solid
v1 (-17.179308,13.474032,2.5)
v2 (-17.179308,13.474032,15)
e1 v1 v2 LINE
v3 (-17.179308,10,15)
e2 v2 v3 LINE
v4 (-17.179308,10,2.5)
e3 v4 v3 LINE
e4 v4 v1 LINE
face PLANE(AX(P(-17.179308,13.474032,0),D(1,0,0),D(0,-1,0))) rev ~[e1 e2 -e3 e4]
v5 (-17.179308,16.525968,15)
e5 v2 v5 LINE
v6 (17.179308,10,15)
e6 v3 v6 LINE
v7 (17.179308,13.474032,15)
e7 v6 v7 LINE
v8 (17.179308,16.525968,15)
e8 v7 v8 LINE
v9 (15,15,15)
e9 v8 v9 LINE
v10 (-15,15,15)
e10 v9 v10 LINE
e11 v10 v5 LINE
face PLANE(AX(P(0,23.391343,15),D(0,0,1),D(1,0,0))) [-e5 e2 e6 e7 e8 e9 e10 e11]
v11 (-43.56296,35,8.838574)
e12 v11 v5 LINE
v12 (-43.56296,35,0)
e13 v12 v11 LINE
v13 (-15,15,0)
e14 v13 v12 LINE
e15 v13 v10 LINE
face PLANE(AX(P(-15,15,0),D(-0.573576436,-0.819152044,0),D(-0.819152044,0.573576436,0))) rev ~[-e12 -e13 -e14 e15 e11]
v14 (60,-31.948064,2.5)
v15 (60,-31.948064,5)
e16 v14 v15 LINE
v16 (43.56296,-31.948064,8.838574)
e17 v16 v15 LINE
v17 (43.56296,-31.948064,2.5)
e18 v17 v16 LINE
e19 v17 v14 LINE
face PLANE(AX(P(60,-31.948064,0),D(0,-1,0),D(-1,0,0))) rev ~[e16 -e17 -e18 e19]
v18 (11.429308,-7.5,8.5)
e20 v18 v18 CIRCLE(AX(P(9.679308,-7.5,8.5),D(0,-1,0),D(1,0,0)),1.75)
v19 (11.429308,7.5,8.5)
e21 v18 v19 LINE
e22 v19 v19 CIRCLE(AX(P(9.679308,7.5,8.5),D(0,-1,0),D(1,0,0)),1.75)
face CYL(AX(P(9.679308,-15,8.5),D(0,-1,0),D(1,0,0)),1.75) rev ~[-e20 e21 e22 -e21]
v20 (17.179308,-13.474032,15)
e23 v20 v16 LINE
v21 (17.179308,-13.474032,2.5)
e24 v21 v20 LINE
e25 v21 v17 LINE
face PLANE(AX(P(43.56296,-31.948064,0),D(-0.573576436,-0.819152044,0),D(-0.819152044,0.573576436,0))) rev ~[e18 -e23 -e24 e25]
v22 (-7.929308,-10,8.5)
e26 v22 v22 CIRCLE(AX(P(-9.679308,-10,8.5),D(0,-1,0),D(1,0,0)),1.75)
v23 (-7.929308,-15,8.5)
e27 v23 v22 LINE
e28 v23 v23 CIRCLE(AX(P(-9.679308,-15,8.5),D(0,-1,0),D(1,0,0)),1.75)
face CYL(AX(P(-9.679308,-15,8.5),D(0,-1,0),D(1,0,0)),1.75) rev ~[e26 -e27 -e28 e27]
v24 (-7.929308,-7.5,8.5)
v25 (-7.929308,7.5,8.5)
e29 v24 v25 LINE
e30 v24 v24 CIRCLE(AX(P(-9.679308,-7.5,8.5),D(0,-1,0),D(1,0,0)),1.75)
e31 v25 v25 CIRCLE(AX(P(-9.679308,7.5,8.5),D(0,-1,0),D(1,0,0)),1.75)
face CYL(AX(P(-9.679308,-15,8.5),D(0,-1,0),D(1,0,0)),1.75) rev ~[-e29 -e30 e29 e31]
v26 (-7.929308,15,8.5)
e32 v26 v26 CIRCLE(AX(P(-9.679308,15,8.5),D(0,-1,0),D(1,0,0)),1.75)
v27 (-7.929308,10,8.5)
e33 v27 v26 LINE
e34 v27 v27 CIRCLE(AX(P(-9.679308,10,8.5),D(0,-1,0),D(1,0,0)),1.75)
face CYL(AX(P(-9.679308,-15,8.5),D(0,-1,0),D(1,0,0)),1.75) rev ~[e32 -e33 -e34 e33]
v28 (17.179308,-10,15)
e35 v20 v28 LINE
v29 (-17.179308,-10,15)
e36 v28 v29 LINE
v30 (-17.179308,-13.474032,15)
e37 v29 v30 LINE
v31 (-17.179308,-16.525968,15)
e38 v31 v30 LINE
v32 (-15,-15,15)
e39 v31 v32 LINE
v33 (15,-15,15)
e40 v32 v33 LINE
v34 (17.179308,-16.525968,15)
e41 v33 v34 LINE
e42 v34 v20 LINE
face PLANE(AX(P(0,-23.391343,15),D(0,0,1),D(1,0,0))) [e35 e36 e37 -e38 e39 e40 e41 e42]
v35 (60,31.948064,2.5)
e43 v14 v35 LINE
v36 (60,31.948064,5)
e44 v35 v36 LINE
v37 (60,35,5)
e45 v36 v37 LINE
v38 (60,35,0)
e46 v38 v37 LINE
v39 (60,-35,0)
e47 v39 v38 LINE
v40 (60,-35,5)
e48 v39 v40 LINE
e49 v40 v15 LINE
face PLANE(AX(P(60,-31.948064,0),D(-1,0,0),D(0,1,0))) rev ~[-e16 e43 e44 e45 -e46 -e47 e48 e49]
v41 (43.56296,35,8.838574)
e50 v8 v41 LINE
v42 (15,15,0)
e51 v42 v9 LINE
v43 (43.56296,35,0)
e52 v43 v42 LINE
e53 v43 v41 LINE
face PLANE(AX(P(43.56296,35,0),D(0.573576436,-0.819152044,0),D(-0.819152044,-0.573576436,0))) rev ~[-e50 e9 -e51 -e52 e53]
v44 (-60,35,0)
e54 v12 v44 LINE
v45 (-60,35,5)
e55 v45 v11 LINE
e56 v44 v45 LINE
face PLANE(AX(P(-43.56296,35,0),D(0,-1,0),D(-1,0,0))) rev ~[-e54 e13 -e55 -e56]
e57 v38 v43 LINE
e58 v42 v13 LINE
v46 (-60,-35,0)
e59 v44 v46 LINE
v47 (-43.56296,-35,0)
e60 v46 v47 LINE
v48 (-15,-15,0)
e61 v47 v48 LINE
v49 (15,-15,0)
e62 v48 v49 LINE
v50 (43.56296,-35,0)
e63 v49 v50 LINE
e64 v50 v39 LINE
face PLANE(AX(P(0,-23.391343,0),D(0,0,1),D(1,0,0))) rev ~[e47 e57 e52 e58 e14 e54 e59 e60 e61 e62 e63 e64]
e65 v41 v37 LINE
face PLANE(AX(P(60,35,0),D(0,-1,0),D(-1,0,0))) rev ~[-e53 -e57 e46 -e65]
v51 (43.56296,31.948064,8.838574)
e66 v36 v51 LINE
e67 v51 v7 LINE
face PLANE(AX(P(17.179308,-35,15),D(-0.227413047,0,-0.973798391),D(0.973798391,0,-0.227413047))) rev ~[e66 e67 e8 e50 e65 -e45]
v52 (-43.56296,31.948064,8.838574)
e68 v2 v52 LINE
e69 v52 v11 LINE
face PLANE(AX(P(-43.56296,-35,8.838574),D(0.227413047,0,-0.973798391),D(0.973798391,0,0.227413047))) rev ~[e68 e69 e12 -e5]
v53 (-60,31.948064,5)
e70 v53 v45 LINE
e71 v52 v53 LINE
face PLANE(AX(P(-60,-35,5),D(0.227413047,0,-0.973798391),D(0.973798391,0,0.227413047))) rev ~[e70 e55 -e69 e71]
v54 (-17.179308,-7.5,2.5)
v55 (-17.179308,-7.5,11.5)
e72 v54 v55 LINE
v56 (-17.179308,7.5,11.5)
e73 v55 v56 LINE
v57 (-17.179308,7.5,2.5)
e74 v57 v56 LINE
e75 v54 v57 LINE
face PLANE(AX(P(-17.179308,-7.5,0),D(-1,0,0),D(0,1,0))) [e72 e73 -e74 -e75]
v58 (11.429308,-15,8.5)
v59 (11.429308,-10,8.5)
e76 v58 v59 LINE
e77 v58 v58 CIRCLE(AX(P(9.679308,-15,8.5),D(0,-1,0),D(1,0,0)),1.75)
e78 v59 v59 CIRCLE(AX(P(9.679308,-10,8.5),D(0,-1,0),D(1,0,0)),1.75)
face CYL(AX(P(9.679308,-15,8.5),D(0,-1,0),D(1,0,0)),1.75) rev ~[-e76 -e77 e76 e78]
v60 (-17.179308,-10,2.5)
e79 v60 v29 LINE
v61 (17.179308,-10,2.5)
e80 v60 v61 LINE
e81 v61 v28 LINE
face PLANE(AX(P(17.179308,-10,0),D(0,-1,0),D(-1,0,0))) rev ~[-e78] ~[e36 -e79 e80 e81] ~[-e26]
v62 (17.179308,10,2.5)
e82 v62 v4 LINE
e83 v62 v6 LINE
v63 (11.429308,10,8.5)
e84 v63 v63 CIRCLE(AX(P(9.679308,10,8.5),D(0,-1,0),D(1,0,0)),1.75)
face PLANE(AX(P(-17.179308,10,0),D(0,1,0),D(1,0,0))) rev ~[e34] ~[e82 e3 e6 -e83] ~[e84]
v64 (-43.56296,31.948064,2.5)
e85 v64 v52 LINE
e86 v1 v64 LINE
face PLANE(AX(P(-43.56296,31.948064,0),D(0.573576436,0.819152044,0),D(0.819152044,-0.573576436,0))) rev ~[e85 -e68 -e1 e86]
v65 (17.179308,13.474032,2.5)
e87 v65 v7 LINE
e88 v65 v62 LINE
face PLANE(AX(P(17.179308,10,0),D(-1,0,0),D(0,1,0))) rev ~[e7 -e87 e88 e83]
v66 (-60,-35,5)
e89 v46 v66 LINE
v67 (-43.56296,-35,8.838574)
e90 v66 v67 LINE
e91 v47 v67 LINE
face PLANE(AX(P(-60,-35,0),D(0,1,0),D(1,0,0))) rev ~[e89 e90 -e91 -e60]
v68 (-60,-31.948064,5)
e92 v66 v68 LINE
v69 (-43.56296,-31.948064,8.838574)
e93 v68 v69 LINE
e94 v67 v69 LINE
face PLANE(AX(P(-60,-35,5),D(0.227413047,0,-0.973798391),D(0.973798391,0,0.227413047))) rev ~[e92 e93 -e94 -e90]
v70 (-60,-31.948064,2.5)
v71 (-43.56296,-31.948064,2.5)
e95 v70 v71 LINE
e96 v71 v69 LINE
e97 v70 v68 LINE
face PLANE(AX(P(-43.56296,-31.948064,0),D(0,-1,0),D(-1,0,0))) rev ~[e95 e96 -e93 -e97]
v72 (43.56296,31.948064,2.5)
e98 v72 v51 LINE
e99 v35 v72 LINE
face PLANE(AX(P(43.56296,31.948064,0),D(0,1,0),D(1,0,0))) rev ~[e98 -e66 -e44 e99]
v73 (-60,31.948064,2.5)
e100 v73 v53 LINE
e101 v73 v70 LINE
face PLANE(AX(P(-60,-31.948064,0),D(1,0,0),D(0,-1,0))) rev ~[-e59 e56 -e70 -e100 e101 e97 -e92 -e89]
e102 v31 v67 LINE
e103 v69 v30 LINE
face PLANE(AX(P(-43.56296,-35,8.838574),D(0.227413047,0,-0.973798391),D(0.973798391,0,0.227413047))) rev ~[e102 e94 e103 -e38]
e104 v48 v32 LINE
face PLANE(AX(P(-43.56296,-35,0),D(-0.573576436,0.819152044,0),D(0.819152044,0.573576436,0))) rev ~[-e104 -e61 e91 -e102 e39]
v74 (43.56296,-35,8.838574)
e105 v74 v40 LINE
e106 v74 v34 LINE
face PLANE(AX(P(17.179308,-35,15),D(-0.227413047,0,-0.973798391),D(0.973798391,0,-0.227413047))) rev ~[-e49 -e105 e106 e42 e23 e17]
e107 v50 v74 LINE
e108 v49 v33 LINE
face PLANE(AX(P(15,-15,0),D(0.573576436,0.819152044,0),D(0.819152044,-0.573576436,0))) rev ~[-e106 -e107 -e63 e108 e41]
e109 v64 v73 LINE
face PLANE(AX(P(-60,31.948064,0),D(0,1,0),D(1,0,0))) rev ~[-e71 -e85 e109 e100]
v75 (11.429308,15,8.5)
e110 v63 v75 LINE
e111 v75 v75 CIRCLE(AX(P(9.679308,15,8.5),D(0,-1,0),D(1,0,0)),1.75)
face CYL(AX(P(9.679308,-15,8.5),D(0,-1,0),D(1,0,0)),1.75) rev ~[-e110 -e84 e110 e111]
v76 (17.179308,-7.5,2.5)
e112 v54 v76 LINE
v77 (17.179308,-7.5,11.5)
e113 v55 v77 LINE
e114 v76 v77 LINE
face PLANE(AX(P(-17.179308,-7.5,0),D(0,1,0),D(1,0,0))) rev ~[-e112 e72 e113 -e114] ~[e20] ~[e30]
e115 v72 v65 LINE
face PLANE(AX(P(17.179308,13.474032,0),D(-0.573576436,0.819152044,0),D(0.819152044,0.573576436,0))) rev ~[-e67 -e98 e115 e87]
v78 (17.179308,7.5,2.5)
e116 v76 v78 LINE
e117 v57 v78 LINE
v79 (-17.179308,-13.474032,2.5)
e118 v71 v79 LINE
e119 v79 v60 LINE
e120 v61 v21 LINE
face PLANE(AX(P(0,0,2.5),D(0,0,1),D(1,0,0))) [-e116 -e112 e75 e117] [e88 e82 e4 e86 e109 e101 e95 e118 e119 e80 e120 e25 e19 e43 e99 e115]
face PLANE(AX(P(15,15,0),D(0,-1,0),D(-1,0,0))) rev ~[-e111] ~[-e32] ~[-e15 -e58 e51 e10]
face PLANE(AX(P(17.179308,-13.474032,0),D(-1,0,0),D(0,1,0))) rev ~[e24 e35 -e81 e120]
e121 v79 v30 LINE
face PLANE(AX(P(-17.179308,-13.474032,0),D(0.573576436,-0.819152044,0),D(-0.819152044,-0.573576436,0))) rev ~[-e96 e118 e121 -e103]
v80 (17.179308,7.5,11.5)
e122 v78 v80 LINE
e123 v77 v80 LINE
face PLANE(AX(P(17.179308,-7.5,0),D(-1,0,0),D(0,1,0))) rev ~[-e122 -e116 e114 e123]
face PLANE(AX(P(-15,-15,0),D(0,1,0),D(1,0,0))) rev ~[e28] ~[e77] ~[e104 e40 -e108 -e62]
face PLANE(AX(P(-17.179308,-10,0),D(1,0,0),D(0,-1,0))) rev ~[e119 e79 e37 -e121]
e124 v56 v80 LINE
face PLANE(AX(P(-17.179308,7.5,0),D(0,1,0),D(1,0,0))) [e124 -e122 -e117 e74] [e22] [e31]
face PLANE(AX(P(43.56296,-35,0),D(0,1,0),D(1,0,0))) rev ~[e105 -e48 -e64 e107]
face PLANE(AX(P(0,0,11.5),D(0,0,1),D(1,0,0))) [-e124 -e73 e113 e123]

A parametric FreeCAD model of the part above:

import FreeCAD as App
import Part
import Sketcher

V = App.Vector
Q = App.Units.Quantity


def add_polygon(sketch, points):
    """Adds a closed chain of lines whose ends are joined by coincident constraints."""
    first, n = sketch.GeometryCount, len(points)
    for a, b in zip(points, points[1:] + points[:1]):
        sketch.addGeometry(Part.LineSegment(App.Vector(*a, 0), App.Vector(*b, 0)), False)
    for i in range(n):
        sketch.addConstraint(Sketcher.Constraint("Coincident", first + i, 2, first + (i + 1) % n, 1))

doc = App.newDocument("Part")
params = doc.addObject("Spreadsheet::Sheet", "Params")
for row, (alias, value) in enumerate([
    ("sketch1_height", "15 mm"),
    ("pad1_length", "11.5 mm"),
    ("sketch2_height", "15 mm"),
    ("pad2_length", "2.5 mm"),
    ("sketch3_width", "30 mm"),
    ("pad3_length", "15 mm"),
    ("sketch4_height", "10 mm"),
    ("sketch5_diameter", "3.5 mm"),
], start=1):
    params.set(f"A{row}", alias)
    params.set(f"B{row}", "=" + value)
    params.setAlias(f"B{row}", alias)

body = doc.addObject("PartDesign::Body", "Body")

# Sketch on XY plane
sketch1 = doc.addObject("Sketcher::SketchObject", "Sketch")
body.addObject(sketch1)
sketch1.AttachmentSupport = (doc.XY_Plane, [""])
sketch1.MapMode = "FlatFace"
add_polygon(sketch1, [(-17, 8), (-17, -8), (17, -8), (17, 8)])  # lines 0-3
sketch1.addConstraint([
    Sketcher.Constraint("Vertical", 0),
    Sketcher.Constraint("Horizontal", 1),
    Sketcher.Constraint("Vertical", 2),
    Sketcher.Constraint("Horizontal", 3),
    Sketcher.Constraint("Symmetric", 0, 2, 2, 2, -1, 1),
    Sketcher.Constraint("DistanceY", 0, 2, 0, 1, 15.0),
    Sketcher.Constraint("DistanceX", 1, 1, 1, 2, 34.358617),
])
sketch1.setExpression("Constraints[9]", "Params.sketch1_height")
pad1 = doc.addObject("PartDesign::Pad", "Pad")
body.addObject(pad1)
pad1.Profile = sketch1
pad1.setExpression("Length", "Params.pad1_length")

# Sketch on XY plane
sketch2 = doc.addObject("Sketcher::SketchObject", "Sketch001")
body.addObject(sketch2)
sketch2.AttachmentSupport = (doc.XY_Plane, [""])
sketch2.MapMode = "FlatFace"
add_polygon(sketch2, [(-43.6, 31.9), (-60, 31.9), (-60, -31.9), (-43.6, -31.9), (-17.2, -13.5), (-17.2, -10), (17.2, -10), (17.2, -13.5), (43.6, -31.9), (60, -31.9), (60, 31.9), (43.6, 31.9), (17.2, 13.5), (17.2, 10), (-17.2, 10), (-17.2, 13.5)])  # lines 0-15
add_polygon(sketch2, [(17.2, -7.5), (-17.2, -7.5), (-17.2, 7.5), (17.2, 7.5)])  # lines 16-19
sketch2.addConstraint([
    Sketcher.Constraint("Horizontal", 0),
    Sketcher.Constraint("Vertical", 1),
    Sketcher.Constraint("Horizontal", 2),
    Sketcher.Constraint("Vertical", 4),
    Sketcher.Constraint("Horizontal", 5),
    Sketcher.Constraint("Vertical", 6),
    Sketcher.Constraint("Horizontal", 8),
    Sketcher.Constraint("Vertical", 9),
    Sketcher.Constraint("Horizontal", 10),
    Sketcher.Constraint("Vertical", 12),
    Sketcher.Constraint("Horizontal", 13),
    Sketcher.Constraint("Vertical", 14),
    Sketcher.Constraint("Horizontal", 16),
    Sketcher.Constraint("Vertical", 17),
    Sketcher.Constraint("Horizontal", 18),
    Sketcher.Constraint("Vertical", 19),
    Sketcher.Constraint("Symmetric", 0, 2, 8, 2, -1, 1),
    Sketcher.Constraint("Symmetric", 2, 2, 10, 2, -1, 1),
    Sketcher.Constraint("Symmetric", 3, 2, 11, 2, -1, 1),
    Sketcher.Constraint("Symmetric", 5, 2, 13, 2, -1, 1),
    Sketcher.Constraint("Symmetric", 16, 2, 18, 2, -1, 1),
    Sketcher.Constraint("Symmetric", 3, 2, 6, 2, -2),
    Sketcher.Constraint("Symmetric", 2, 2, 7, 2, -2),
    Sketcher.Constraint("Parallel", 7, 15),
    Sketcher.Constraint("Horizontal", 11, 2, 14, 2),
    Sketcher.Constraint("Vertical", 14, 2, 16, 2),
    Sketcher.Constraint("DistanceY", 17, 1, 17, 2, 15.0),
    Sketcher.Constraint("Angle", 3, Q("35 deg")),
    Sketcher.Constraint("DistanceX", 0, 2, -1, 1, 60.0),
    Sketcher.Constraint("DistanceY", 4, 2, -1, 1, 10.0),
    Sketcher.Constraint("DistanceX", 0, 2, 0, 1, 16.43704),
    Sketcher.Constraint("DistanceY", 4, 1, 4, 2, 3.474032),
    Sketcher.Constraint("Distance", 3, 32.208491),
])
sketch2.setExpression("Constraints[46]", "Params.sketch2_height")
pad2 = doc.addObject("PartDesign::Pad", "Pad001")
body.addObject(pad2)
pad2.Profile = sketch2
pad2.setExpression("Length", "Params.pad2_length")

# Sketch on XY plane
sketch3 = doc.addObject("Sketcher::SketchObject", "Sketch002")
body.addObject(sketch3)
sketch3.AttachmentSupport = (doc.XY_Plane, [""])
sketch3.MapMode = "FlatFace"
add_polygon(sketch3, [(-43.6, -31.9), (-60, -31.9), (-60, -35), (-43.6, -35), (-15, -15), (15, -15), (43.6, -35), (60, -35), (60, -31.9), (43.6, -31.9), (17.2, -13.5), (17.2, -10), (-17.2, -10), (-17.2, -13.5)])  # lines 0-13
add_polygon(sketch3, [(15, 15), (-15, 15), (-43.6, 35), (-60, 35), (-60, 31.9), (-43.6, 31.9), (-17.2, 13.5), (-17.2, 10), (17.2, 10), (17.2, 13.5), (43.6, 31.9), (60, 31.9), (60, 35), (43.6, 35)])  # lines 14-27
sketch3.addConstraint([
    Sketcher.Constraint("Horizontal", 0),
    Sketcher.Constraint("Vertical", 1),
    Sketcher.Constraint("Horizontal", 2),
    Sketcher.Constraint("Horizontal", 4),
    Sketcher.Constraint("Horizontal", 6),
    Sketcher.Constraint("Vertical", 7),
    Sketcher.Constraint("Horizontal", 8),
    Sketcher.Constraint("Vertical", 10),
    Sketcher.Constraint("Horizontal", 11),
    Sketcher.Constraint("Vertical", 12),
    Sketcher.Constraint("Horizontal", 14),
    Sketcher.Constraint("Horizontal", 16),
    Sketcher.Constraint("Vertical", 17),
    Sketcher.Constraint("Horizontal", 18),
    Sketcher.Constraint("Vertical", 20),
    Sketcher.Constraint("Horizontal", 21),
    Sketcher.Constraint("Vertical", 22),
    Sketcher.Constraint("Horizontal", 24),
    Sketcher.Constraint("Vertical", 25),
    Sketcher.Constraint("Horizontal", 26),
    Sketcher.Constraint("Symmetric", 4, 2, 14, 2, -1, 1),
    Sketcher.Constraint("Symmetric", 5, 2, 15, 2, -1, 1),
    Sketcher.Constraint("Symmetric", 7, 2, 17, 2, -1, 1),
    Sketcher.Constraint("Symmetric", 9, 2, 19, 2, -1, 1),
    Sketcher.Constraint("Symmetric", 11, 2, 21, 2, -1, 1),
    Sketcher.Constraint("Symmetric", 13, 2, 23, 2, -1, 1),
    Sketcher.Constraint("Symmetric", 1, 2, 25, 2, -1, 1),
    Sketcher.Constraint("Symmetric", 2, 2, 5, 2, -2),
    Sketcher.Constraint("Symmetric", 0, 2, 7, 2, -2),
    Sketcher.Constraint("Symmetric", 9, 2, 12, 2, -2),
    Sketcher.Constraint("Parallel", 5, 9),
    Sketcher.Constraint("Parallel", 3, 13),
    Sketcher.Constraint("Parallel", 15, 19),
    Sketcher.Constraint("Parallel", 13, 23),
    Sketcher.Constraint("Parallel", 23, 27),
    Sketcher.Constraint("Vertical", 5, 2, 8, 2),
    Sketcher.Constraint("Vertical", 2, 2, 13, 2),
    Sketcher.Constraint("Vertical", 23, 2, 26, 2),
    Sketcher.Constraint("DistanceX", 4, 1, 4, 2, 30.0),
    Sketcher.Constraint("Angle", 3, Q("35 deg")),
    Sketcher.Constraint("DistanceX", 0, 2, -1, 1, 60.0),
    Sketcher.Constraint("DistanceY", 1, 2, -1, 1, 35.0),
    Sketcher.Constraint("DistanceY", 3, 2, -1, 1, 15.0),
    Sketcher.Constraint("DistanceY", 10, 2, -1, 1, 10.0),
    Sketcher.Constraint("DistanceY", 10, 1, 10, 2, 3.474032),
    Sketcher.Constraint("Distance", 9, 32.208491),
])
sketch3.setExpression("Constraints[66]", "Params.sketch3_width")
pad3 = doc.addObject("PartDesign::Pad", "Pad002")
body.addObject(pad3)
pad3.Profile = sketch3
pad3.setExpression("Length", "Params.pad3_length")

# Sketch on XZ plane
sketch4 = doc.addObject("Sketcher::SketchObject", "Sketch003")
body.addObject(sketch4)
sketch4.AttachmentSupport = (doc.XZ_Plane, [""])
sketch4.MapMode = "FlatFace"
sketch4.AttachmentOffset = App.Placement(V(0, 0, 35), App.Rotation())
add_polygon(sketch4, [(-60, 15), (-60, 5), (-44, 9), (-17, 15)])  # lines 0-3
add_polygon(sketch4, [(17, 15), (60, 5), (60, 15)])  # lines 4-6
sketch4.addConstraint([
    Sketcher.Constraint("Vertical", 0),
    Sketcher.Constraint("Horizontal", 3),
    Sketcher.Constraint("Vertical", 5),
    Sketcher.Constraint("Horizontal", 6),
    Sketcher.Constraint("Symmetric", 0, 2, 4, 2, -2),
    Sketcher.Constraint("Symmetric", 2, 2, 6, 2, -2),
    Sketcher.Constraint("Parallel", 1, 2),
    Sketcher.Constraint("DistanceY", 0, 2, 0, 1, 10.0),
    Sketcher.Constraint("DistanceX", 0, 2, -1, 1, 60.0),
    Sketcher.Constraint("DistanceY", -1, 1, 0, 2, 5.0),
    Sketcher.Constraint("DistanceX", 3, 2, 3, 1, 42.820692),
    Sketcher.Constraint("DistanceX", 1, 2, -1, 1, 43.56296),
])
sketch4.setExpression("Constraints[14]", "Params.sketch4_height")
pocket1 = doc.addObject("PartDesign::Pocket", "Pocket")
body.addObject(pocket1)
pocket1.Profile = sketch4
pocket1.Type = "ThroughAll"

# Sketch on XZ plane
sketch5 = doc.addObject("Sketcher::SketchObject", "Sketch004")
body.addObject(sketch5)
sketch5.AttachmentSupport = (doc.XZ_Plane, [""])
sketch5.MapMode = "FlatFace"
sketch5.AttachmentOffset = App.Placement(V(0, 0, 15), App.Rotation())
sketch5.addGeometry([
    Part.Circle(V(-9.7, 8.5, 0), V(0, 0, 1), 1.8),
    Part.Circle(V(9.7, 8.5, 0), V(0, 0, 1), 1.8),
], False)
sketch5.addConstraint([
    Sketcher.Constraint("Equal", 0, 1),
    Sketcher.Constraint("Symmetric", 0, 3, 1, 3, -2),
    Sketcher.Constraint("Diameter", 0, 3.5),
    Sketcher.Constraint("DistanceY", -1, 1, 0, 3, 8.5),
    Sketcher.Constraint("DistanceX", 0, 3, -1, 1, 9.679308),
])
sketch5.setExpression("Constraints[2]", "Params.sketch5_diameter")
pocket2 = doc.addObject("PartDesign::Pocket", "Pocket001")
body.addObject(pocket2)
pocket2.Profile = sketch5
pocket2.Type = "ThroughAll"

doc.recompute()
